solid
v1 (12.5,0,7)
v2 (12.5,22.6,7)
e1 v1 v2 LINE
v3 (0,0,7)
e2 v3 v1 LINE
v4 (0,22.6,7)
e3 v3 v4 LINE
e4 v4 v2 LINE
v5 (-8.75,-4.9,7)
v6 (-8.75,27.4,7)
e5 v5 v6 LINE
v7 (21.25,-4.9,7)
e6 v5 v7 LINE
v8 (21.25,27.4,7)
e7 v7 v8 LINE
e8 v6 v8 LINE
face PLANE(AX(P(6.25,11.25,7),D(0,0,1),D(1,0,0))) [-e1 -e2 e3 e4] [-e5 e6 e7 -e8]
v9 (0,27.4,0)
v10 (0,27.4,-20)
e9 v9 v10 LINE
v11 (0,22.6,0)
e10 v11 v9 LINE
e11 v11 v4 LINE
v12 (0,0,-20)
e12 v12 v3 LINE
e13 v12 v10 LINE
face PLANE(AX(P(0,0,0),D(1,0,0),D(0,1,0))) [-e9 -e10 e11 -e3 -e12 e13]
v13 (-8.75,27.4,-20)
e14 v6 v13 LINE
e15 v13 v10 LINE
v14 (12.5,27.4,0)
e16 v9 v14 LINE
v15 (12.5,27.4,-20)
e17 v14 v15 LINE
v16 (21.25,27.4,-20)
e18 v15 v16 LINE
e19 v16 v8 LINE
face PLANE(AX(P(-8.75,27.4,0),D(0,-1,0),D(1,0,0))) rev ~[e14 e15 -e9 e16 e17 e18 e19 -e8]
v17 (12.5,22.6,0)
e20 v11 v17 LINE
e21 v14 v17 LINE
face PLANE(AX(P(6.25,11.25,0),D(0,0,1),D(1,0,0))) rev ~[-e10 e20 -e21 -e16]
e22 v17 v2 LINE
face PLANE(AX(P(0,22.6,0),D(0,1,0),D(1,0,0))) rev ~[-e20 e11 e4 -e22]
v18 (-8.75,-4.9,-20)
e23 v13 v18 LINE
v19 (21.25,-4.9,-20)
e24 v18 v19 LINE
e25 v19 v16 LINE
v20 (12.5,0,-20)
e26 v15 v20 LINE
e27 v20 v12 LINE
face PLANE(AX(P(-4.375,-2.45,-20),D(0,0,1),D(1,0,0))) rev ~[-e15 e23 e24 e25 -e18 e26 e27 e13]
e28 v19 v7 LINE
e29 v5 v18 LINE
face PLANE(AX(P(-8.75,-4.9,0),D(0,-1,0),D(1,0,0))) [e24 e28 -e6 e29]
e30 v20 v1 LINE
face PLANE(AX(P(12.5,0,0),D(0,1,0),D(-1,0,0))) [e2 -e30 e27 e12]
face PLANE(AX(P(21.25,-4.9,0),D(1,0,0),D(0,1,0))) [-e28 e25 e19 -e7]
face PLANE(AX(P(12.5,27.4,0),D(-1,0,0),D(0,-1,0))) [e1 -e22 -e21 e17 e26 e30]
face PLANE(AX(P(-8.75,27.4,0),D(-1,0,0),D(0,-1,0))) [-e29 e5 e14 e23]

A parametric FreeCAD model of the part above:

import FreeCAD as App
import Part
import Sketcher
Q = App.Units.Quantity


def add_polygon(sketch, points):
    """Adds a closed chain of lines whose ends are joined by coincident constraints."""
    first, n = sketch.GeometryCount, len(points)
    for a, b in zip(points, points[1:] + points[:1]):
        sketch.addGeometry(Part.LineSegment(App.Vector(*a, 0), App.Vector(*b, 0)), False)
    for i in range(n):
        sketch.addConstraint(Sketcher.Constraint("Coincident", first + i, 2, first + (i + 1) % n, 1))

doc = App.newDocument("Part")
body = doc.addObject("PartDesign::Body", "Body")

# Sketch on XY plane
sketch1 = body.newObject("Sketcher::SketchObject", "Sketch")
sketch1.AttachmentSupport = (doc.getObject("XY_Plane"), [""])
sketch1.MapMode = "FlatFace"
add_polygon(sketch1, [(-9, 27), (-9, -5), (21, -5), (21, 27)])  # lines 0-3
sketch1.addConstraint([
    Sketcher.Constraint("Vertical", 0),
    Sketcher.Constraint("Horizontal", 1),
    Sketcher.Constraint("Vertical", 2),
    Sketcher.Constraint("Horizontal", 3),
    Sketcher.Constraint("DistanceX", 1, 1, 1, 2, Q("30 mm")),
    Sketcher.Constraint("DistanceY", 0, 2, 0, 1, Q("32.3 mm")),
    Sketcher.Constraint("DistanceY", 0, 2, -1, 1, Q("4.9 mm")),
    Sketcher.Constraint("DistanceX", 0, 2, -1, 1, Q("8.75 mm")),
])
pad1 = body.newObject("PartDesign::Pad", "Pad")
pad1.Profile = sketch1
pad1.Length = 7

# Sketch on XY plane
sketch2 = body.newObject("Sketcher::SketchObject", "Sketch001")
sketch2.AttachmentSupport = (doc.getObject("XY_Plane"), [""])
sketch2.MapMode = "FlatFace"
add_polygon(sketch2, [(0, 23), (0, 0), (12, 0), (12, 23)])  # lines 0-3
sketch2.addConstraint([
    Sketcher.Constraint("Vertical", 0),
    Sketcher.Constraint("Horizontal", 1),
    Sketcher.Constraint("Vertical", 2),
    Sketcher.Constraint("Horizontal", 3),
    Sketcher.Constraint("Coincident", 0, 2, -1, 1),
    Sketcher.Constraint("DistanceX", 1, 1, 1, 2, Q("12.5 mm")),
    Sketcher.Constraint("DistanceY", 0, 2, 0, 1, Q("22.6 mm")),
])
pocket1 = body.newObject("PartDesign::Pocket", "Pocket")
pocket1.Profile = sketch2
pocket1.Length = 7
pocket1.Reversed = True

# Sketch on XY plane
sketch3 = body.newObject("Sketcher::SketchObject", "Sketch002")
sketch3.AttachmentSupport = (doc.getObject("XY_Plane"), [""])
sketch3.MapMode = "FlatFace"
add_polygon(sketch3, [(-9, -5), (21, -5), (21, 27), (12, 27), (12, 0), (0, 0), (0, 27), (-9, 27)])  # lines 0-7
sketch3.addConstraint([
    Sketcher.Constraint("Horizontal", 0),
    Sketcher.Constraint("Vertical", 1),
    Sketcher.Constraint("Horizontal", 2),
    Sketcher.Constraint("Vertical", 3),
    Sketcher.Constraint("Horizontal", 4),
    Sketcher.Constraint("Vertical", 5),
    Sketcher.Constraint("Horizontal", 6),
    Sketcher.Constraint("Vertical", 7),
    Sketcher.Constraint("Coincident", 4, 2, -1, 1),
    Sketcher.Constraint("Horizontal", 2, 2, 5, 2),
    Sketcher.Constraint("Equal", 2, 6),
    Sketcher.Constraint("DistanceX", 0, 1, 0, 2, Q("30 mm")),
    Sketcher.Constraint("DistanceX", 4, 2, 4, 1, Q("12.5 mm")),
    Sketcher.Constraint("DistanceY", 1, 1, 1, 2, Q("32.3 mm")),
    Sketcher.Constraint("DistanceY", 3, 2, 3, 1, Q("27.4 mm")),
])
pad2 = body.newObject("PartDesign::Pad", "Pad001")
pad2.Profile = sketch3
pad2.Length = 20
pad2.Reversed = True

doc.recompute()
